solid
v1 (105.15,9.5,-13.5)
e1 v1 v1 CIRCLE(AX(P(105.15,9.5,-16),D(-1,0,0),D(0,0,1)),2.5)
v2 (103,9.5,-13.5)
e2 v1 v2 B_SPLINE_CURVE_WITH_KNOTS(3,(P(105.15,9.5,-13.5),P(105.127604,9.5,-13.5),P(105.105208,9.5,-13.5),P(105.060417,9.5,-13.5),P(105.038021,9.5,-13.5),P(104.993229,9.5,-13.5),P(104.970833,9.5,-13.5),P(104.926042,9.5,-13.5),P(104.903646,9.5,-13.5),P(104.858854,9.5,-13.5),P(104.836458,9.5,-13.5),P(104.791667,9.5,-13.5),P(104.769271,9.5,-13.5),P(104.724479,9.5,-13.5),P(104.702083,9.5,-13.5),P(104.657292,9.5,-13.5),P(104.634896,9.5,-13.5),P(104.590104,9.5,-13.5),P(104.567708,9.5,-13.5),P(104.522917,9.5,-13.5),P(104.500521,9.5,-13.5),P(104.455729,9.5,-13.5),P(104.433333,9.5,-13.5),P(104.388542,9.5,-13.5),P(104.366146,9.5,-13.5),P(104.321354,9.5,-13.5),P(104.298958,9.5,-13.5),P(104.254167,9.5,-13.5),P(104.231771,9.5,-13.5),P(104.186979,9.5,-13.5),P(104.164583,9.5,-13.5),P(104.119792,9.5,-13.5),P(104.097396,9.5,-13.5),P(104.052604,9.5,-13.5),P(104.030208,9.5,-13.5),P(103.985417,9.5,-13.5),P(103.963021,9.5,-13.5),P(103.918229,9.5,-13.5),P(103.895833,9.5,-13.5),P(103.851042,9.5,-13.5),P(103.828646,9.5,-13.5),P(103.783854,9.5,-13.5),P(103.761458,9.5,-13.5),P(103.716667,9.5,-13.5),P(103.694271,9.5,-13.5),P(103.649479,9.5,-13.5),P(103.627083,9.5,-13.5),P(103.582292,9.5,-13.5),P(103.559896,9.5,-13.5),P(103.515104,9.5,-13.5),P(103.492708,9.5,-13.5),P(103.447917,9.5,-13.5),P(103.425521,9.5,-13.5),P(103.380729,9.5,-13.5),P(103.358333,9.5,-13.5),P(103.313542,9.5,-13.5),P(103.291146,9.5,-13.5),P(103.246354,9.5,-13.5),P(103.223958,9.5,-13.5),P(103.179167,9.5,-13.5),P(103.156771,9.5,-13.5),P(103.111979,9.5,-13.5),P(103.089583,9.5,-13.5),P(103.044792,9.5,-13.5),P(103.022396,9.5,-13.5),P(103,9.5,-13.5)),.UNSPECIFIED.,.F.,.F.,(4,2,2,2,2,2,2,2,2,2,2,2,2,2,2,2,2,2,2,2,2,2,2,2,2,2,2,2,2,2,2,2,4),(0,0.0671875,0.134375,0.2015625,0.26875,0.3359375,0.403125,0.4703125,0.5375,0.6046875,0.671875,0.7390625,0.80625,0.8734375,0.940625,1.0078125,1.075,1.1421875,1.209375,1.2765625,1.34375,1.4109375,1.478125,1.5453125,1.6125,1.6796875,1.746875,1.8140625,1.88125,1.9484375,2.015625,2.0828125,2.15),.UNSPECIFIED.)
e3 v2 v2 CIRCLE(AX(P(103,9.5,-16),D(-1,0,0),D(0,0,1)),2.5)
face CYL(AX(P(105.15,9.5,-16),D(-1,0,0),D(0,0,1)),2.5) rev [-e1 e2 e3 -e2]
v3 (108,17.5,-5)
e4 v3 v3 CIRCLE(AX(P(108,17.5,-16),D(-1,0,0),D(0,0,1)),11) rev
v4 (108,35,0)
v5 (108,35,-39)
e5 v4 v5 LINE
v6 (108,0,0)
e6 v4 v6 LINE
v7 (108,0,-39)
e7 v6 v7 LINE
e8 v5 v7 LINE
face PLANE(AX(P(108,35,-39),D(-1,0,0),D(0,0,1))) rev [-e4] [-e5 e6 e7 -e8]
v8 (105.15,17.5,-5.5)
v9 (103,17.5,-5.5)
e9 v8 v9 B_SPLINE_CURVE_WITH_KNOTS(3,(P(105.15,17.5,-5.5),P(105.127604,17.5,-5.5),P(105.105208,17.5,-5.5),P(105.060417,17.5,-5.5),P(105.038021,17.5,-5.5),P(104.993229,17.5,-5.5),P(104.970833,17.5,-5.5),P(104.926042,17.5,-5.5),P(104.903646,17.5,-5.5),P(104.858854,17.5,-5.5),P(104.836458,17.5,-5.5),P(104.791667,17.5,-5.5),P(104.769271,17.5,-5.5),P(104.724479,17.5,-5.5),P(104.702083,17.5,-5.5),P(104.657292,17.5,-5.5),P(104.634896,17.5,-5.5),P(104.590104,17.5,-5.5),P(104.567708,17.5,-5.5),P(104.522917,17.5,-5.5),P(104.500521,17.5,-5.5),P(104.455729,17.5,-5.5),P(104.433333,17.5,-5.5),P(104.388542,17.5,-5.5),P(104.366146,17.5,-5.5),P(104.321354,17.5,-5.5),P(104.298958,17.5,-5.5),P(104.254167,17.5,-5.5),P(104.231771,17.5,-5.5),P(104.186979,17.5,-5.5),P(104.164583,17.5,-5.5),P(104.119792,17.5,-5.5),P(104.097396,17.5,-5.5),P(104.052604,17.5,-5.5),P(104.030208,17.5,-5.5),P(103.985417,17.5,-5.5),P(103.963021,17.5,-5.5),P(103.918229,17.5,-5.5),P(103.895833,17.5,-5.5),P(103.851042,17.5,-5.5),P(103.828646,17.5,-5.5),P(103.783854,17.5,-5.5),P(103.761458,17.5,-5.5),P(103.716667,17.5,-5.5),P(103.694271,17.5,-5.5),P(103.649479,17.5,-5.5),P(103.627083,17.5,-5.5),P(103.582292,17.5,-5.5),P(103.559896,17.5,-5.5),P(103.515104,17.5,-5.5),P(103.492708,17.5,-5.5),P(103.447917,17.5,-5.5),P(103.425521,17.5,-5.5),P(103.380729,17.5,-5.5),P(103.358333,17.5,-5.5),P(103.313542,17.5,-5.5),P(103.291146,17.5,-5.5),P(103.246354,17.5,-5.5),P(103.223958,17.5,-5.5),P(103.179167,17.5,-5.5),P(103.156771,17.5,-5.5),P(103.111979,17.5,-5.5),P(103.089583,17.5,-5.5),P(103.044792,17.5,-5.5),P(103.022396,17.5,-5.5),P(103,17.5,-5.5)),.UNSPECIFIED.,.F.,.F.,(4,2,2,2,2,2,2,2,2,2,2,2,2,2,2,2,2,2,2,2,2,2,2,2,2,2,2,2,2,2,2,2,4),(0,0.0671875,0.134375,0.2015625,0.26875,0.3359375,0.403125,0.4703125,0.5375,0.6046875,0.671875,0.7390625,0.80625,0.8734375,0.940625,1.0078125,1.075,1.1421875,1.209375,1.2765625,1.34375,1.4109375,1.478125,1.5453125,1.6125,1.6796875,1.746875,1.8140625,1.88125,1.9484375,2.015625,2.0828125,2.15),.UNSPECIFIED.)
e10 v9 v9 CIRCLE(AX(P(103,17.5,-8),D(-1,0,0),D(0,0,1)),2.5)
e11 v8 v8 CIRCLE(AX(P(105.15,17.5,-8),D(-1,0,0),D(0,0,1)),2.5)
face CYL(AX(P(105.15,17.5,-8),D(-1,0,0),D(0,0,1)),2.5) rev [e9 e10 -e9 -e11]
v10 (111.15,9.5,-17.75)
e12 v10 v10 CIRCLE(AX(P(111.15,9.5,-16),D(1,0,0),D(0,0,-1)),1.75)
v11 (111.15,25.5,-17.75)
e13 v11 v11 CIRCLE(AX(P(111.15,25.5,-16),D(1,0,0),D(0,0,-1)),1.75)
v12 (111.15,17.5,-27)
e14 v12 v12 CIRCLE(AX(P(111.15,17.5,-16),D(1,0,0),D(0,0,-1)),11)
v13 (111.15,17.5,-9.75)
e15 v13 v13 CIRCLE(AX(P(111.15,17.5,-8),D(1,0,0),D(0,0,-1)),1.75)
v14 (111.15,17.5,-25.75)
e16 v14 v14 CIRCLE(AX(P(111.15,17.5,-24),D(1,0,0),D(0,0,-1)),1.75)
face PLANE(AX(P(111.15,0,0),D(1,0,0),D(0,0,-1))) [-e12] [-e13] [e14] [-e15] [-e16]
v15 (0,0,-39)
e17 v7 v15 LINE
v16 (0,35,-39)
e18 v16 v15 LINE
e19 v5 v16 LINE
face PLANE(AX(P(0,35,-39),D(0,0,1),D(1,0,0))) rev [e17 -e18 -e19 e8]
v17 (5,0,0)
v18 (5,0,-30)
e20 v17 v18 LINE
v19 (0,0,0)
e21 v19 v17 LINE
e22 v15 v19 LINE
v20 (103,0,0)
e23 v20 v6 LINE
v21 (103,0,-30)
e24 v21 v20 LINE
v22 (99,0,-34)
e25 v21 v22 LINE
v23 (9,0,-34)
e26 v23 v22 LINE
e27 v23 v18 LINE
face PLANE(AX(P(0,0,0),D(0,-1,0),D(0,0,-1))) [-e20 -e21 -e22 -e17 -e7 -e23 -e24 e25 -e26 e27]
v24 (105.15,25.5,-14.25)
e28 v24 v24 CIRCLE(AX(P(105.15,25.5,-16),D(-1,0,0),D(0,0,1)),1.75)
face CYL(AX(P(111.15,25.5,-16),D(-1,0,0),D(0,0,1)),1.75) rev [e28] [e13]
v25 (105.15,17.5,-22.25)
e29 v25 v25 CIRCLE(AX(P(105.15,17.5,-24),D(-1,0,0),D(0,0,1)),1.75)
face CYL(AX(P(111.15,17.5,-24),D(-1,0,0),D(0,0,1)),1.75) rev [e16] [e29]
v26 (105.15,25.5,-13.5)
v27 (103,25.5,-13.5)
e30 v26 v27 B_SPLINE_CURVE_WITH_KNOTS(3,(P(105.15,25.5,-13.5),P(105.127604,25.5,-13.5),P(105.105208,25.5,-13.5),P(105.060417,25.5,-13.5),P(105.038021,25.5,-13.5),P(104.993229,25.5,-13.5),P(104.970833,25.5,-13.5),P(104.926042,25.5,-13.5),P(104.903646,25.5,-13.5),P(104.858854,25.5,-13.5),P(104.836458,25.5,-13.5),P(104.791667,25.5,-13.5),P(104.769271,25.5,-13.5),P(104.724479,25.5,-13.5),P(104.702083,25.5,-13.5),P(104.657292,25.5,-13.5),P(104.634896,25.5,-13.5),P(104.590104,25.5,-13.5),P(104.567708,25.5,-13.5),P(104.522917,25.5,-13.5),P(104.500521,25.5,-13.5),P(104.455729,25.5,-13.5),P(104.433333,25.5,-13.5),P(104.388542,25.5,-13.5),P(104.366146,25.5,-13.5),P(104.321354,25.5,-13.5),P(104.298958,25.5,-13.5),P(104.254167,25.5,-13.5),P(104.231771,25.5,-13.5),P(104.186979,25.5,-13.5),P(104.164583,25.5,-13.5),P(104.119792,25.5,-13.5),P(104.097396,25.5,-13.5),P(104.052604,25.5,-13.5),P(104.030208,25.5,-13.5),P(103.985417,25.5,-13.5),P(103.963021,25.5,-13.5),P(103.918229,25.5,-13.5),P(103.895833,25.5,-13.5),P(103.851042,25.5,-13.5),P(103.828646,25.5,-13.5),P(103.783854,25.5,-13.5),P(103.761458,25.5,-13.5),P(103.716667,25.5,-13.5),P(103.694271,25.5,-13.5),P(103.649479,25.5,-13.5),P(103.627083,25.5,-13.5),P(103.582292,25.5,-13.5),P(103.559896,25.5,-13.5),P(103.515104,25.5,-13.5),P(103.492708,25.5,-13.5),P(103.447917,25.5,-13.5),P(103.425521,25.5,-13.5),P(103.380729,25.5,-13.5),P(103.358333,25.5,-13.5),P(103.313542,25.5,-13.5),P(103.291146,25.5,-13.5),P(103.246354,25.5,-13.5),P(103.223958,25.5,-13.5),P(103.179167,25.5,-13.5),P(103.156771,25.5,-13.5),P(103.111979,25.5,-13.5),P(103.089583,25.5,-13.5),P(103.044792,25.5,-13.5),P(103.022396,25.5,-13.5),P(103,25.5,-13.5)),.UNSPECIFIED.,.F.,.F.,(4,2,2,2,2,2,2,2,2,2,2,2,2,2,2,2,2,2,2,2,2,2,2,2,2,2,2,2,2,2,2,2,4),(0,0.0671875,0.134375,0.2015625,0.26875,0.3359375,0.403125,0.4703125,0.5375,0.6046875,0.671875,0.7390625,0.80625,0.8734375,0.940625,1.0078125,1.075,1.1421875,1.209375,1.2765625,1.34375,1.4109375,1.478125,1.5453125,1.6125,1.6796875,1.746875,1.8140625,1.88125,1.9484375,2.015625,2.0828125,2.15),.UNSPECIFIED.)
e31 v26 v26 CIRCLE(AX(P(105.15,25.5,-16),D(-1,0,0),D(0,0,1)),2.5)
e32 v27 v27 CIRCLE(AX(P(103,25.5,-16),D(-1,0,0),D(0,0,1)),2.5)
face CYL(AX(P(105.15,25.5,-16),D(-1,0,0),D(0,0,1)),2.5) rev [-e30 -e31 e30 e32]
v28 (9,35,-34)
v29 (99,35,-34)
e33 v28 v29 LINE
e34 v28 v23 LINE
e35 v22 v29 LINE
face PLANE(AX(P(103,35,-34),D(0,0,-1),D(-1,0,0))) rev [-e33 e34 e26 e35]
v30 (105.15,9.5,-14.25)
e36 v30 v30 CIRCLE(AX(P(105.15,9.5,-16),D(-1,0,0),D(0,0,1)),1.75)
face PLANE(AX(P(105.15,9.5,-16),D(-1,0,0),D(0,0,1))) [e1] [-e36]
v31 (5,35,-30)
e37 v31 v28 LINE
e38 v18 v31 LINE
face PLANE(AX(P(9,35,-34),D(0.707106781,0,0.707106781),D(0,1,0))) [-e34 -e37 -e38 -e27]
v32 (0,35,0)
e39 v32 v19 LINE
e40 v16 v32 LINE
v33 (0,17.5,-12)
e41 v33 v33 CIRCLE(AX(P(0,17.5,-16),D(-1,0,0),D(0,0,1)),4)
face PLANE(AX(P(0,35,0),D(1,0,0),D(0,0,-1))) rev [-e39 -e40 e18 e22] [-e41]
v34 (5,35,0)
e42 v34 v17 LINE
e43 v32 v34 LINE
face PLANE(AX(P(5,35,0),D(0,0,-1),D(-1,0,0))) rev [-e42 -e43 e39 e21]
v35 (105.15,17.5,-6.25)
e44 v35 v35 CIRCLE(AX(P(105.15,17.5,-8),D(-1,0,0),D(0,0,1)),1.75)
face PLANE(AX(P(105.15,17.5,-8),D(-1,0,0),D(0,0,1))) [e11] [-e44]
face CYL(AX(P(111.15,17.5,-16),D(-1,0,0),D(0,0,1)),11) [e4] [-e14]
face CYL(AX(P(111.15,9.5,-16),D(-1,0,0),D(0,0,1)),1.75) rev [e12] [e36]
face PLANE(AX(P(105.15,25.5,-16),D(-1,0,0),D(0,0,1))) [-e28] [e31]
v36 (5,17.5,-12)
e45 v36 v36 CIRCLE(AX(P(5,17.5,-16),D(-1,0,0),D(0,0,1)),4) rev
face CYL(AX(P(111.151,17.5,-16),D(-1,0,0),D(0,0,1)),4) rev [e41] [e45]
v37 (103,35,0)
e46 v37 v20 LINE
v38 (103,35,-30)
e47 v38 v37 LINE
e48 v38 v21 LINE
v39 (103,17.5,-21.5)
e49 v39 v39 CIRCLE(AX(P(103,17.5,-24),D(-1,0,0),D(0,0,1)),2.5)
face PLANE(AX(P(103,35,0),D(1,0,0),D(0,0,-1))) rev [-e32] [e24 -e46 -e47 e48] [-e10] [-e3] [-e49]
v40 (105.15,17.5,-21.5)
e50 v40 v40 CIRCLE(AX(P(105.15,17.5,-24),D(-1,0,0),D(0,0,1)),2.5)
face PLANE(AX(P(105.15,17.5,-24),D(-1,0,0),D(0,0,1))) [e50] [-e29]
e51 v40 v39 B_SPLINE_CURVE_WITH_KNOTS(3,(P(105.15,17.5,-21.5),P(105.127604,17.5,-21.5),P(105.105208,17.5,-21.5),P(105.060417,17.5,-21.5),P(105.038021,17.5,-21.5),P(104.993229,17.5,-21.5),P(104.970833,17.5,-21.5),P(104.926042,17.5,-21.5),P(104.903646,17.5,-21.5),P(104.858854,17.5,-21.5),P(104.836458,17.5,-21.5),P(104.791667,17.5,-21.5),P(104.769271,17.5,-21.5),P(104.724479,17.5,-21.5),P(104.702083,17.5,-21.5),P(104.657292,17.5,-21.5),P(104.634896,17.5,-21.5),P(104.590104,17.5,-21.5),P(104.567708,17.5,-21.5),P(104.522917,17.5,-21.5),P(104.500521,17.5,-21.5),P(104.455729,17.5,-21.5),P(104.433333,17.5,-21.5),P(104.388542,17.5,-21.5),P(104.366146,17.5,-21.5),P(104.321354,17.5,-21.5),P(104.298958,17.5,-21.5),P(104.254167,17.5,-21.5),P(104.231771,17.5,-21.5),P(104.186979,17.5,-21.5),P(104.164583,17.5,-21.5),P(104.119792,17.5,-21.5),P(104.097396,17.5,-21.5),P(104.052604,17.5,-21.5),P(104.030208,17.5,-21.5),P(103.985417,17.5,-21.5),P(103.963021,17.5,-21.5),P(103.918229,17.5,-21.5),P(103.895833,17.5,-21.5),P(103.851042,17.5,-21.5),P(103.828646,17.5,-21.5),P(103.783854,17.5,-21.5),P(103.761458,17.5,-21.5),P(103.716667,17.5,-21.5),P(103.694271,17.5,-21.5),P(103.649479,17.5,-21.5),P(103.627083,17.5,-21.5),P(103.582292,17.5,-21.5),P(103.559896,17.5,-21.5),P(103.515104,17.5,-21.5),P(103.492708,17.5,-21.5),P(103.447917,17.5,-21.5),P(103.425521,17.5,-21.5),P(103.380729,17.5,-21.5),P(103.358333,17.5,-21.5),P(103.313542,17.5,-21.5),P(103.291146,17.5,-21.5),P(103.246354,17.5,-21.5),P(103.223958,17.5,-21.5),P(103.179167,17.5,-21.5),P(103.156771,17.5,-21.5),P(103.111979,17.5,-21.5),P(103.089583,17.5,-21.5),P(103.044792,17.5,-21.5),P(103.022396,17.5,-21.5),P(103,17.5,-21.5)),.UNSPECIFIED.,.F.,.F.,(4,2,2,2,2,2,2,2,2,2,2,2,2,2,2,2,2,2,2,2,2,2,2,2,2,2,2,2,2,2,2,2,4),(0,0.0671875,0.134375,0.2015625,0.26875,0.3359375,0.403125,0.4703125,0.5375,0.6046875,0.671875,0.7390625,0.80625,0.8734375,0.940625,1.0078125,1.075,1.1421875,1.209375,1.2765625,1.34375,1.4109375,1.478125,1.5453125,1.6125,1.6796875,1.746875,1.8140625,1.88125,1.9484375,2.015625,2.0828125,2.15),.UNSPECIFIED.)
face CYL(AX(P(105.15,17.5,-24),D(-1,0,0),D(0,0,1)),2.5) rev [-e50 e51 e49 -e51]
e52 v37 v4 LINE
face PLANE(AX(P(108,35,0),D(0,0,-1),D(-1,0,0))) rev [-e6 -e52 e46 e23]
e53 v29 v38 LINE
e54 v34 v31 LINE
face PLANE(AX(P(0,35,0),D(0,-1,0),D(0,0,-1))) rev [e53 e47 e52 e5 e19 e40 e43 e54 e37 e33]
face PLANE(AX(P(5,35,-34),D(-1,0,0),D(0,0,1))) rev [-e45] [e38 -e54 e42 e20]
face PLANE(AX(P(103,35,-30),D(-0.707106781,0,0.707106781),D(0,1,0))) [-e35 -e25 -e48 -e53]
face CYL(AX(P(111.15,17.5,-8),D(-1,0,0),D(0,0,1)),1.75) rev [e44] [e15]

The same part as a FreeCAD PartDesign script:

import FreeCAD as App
import Part
import Sketcher
from FreeCAD import Vector
Q = App.Units.Quantity


def edges_at(feature, points):
    """Names of the edges that pass closest to the given points."""
    edges = feature.Shape.Edges
    near = lambda p: min(range(len(edges)), key=lambda i: edges[i].distToShape(Part.Vertex(*p))[0])
    return sorted({f"Edge{near(p) + 1}" for p in points})

doc = App.newDocument("Part")
body = doc.addObject("PartDesign::Body", "Body")

# Sketch on XZ plane
sketch1 = body.newObject("Sketcher::SketchObject", "Sketch")
sketch1.AttachmentSupport = (doc.getObject("XZ_Plane"), [""])
sketch1.MapMode = "FlatFace"
sketch1.addGeometry([
    Part.LineSegment(Vector(0, -39, 0), Vector(0, 0, 0)),  # 0
    Part.LineSegment(Vector(0, 0, 0), Vector(5, 0, 0)),  # 1
    Part.LineSegment(Vector(5, 0, 0), Vector(5, -34, 0)),  # 2
    Part.LineSegment(Vector(5, -34, 0), Vector(103, -34, 0)),  # 3
    Part.LineSegment(Vector(103, -34, 0), Vector(103, 0, 0)),  # 4
    Part.LineSegment(Vector(103, 0, 0), Vector(108, 0, 0)),  # 5
    Part.LineSegment(Vector(108, 0, 0), Vector(108, -39, 0)),  # 6
    Part.LineSegment(Vector(108, -39, 0), Vector(0, -39, 0)),  # 7
], False)
sketch1.addConstraint([
    Sketcher.Constraint("Coincident", 0, 2, 1, 1),
    Sketcher.Constraint("Coincident", 1, 2, 2, 1),
    Sketcher.Constraint("Coincident", 2, 2, 3, 1),
    Sketcher.Constraint("Coincident", 3, 2, 4, 1),
    Sketcher.Constraint("Coincident", 4, 2, 5, 1),
    Sketcher.Constraint("Coincident", 5, 2, 6, 1),
    Sketcher.Constraint("Coincident", 6, 2, 7, 1),
    Sketcher.Constraint("Coincident", 7, 2, 0, 1),
    Sketcher.Constraint("Vertical", 0),
    Sketcher.Constraint("Horizontal", 1),
    Sketcher.Constraint("Vertical", 2),
    Sketcher.Constraint("Horizontal", 3),
    Sketcher.Constraint("Vertical", 4),
    Sketcher.Constraint("Horizontal", 5),
    Sketcher.Constraint("Vertical", 6),
    Sketcher.Constraint("Horizontal", 7),
    Sketcher.Constraint("Coincident", 0, 2, -1, 1),
    Sketcher.Constraint("PointOnObject", 4, 2, -1),
    Sketcher.Constraint("Equal", 1, 5),
    Sketcher.Constraint("DistanceX", 1, 1, 1, 2, Q("5 mm")),
    Sketcher.Constraint("DistanceX", 3, 1, 3, 2, Q("98 mm")),
    Sketcher.Constraint("DistanceY", 0, 1, 0, 2, Q("39 mm")),
    Sketcher.Constraint("DistanceY", 2, 2, 2, 1, Q("34 mm")),
])
pad1 = body.newObject("PartDesign::Pad", "Pad")
pad1.Profile = sketch1
pad1.Length = 35
pad1.Reversed = True

# Sketch on YZ plane
sketch2 = body.newObject("Sketcher::SketchObject", "Sketch001")
sketch2.AttachmentSupport = (doc.getObject("YZ_Plane"), [""])
sketch2.MapMode = "FlatFace"
sketch2.AttachmentOffset = App.Placement(Vector(0, 0, 108), App.Rotation())
sketch2.addGeometry([
    Part.Circle(Vector(17.5, -16, 0), Vector(0, 0, 1), 11),  # 0
    Part.Circle(Vector(25.5, -16, 0), Vector(0, 0, 1), 1.8),  # 1
    Part.Circle(Vector(17.5, -24, 0), Vector(0, 0, 1), 1.8),  # 2
    Part.Circle(Vector(9.5, -16, 0), Vector(0, 0, 1), 1.8),  # 3
    Part.Circle(Vector(17.5, -8, 0), Vector(0, 0, 1), 1.8),  # 4
], False)
sketch2.addConstraint([
    Sketcher.Constraint("Equal", 1, 2),
    Sketcher.Constraint("Equal", 2, 3),
    Sketcher.Constraint("Equal", 3, 4),
    Sketcher.Constraint("Horizontal", 0, 3, 1, 3),
    Sketcher.Constraint("Horizontal", 1, 3, 3, 3),
    Sketcher.Constraint("Vertical", 0, 3, 2, 3),
    Sketcher.Constraint("Vertical", 2, 3, 4, 3),
    Sketcher.Constraint("Diameter", 0, Q("22 mm")),
    Sketcher.Constraint("Diameter", 1, Q("3.5 mm")),
    Sketcher.Constraint("DistanceY", 0, 3, -1, 1, Q("16 mm")),
    Sketcher.Constraint("DistanceY", 2, 3, -1, 1, Q("24 mm")),
    Sketcher.Constraint("DistanceY", 4, 3, -1, 1, Q("8 mm")),
    Sketcher.Constraint("DistanceX", 0, 3, 1, 3, Q("8 mm")),
    Sketcher.Constraint("DistanceX", 3, 3, 0, 3, Q("8 mm")),
    Sketcher.Constraint("DistanceX", -1, 1, 0, 3, Q("17.5 mm")),
])
pad2 = body.newObject("PartDesign::Pad", "Pad001")
pad2.Profile = sketch2
pad2.Length = 3.15

# Sketch on YZ plane
sketch3 = body.newObject("Sketcher::SketchObject", "Sketch002")
sketch3.AttachmentSupport = (doc.getObject("YZ_Plane"), [""])
sketch3.MapMode = "FlatFace"
sketch3.AttachmentOffset = App.Placement(Vector(0, 0, 108), App.Rotation())
sketch3.addGeometry(Part.Circle(Vector(9.5, -16, 0), Vector(0, 0, 1), 1.8), False)
sketch3.addConstraint([
    Sketcher.Constraint("Diameter", 0, Q("3.5 mm")),
    Sketcher.Constraint("DistanceY", 0, 3, -1, 1, Q("16 mm")),
    Sketcher.Constraint("DistanceX", -1, 1, 0, 3, Q("9.5 mm")),
])
pocket1 = body.newObject("PartDesign::Pocket", "Pocket")
pocket1.Profile = sketch3
pocket1.Type = "UpToFirst"

# Sketch on YZ plane
sketch4 = body.newObject("Sketcher::SketchObject", "Sketch003")
sketch4.AttachmentSupport = (doc.getObject("YZ_Plane"), [""])
sketch4.MapMode = "FlatFace"
sketch4.AttachmentOffset = App.Placement(Vector(0, 0, 108), App.Rotation())
sketch4.addGeometry(Part.Circle(Vector(17.5, -24, 0), Vector(0, 0, 1), 1.8), False)
sketch4.addConstraint([
    Sketcher.Constraint("Diameter", 0, Q("3.5 mm")),
    Sketcher.Constraint("DistanceY", 0, 3, -1, 1, Q("24 mm")),
    Sketcher.Constraint("DistanceX", -1, 1, 0, 3, Q("17.5 mm")),
])
pocket2 = body.newObject("PartDesign::Pocket", "Pocket001")
pocket2.Profile = sketch4
pocket2.Type = "UpToFirst"

# Sketch on YZ plane
sketch5 = body.newObject("Sketcher::SketchObject", "Sketch004")
sketch5.AttachmentSupport = (doc.getObject("YZ_Plane"), [""])
sketch5.MapMode = "FlatFace"
sketch5.AttachmentOffset = App.Placement(Vector(0, 0, 108), App.Rotation())
sketch5.addGeometry(Part.Circle(Vector(25.5, -16, 0), Vector(0, 0, 1), 1.8), False)
sketch5.addConstraint([
    Sketcher.Constraint("Diameter", 0, Q("3.5 mm")),
    Sketcher.Constraint("DistanceY", 0, 3, -1, 1, Q("16 mm")),
    Sketcher.Constraint("DistanceX", -1, 1, 0, 3, Q("25.5 mm")),
])
pocket3 = body.newObject("PartDesign::Pocket", "Pocket002")
pocket3.Profile = sketch5
pocket3.Type = "UpToFirst"

# Sketch on YZ plane
sketch6 = body.newObject("Sketcher::SketchObject", "Sketch005")
sketch6.AttachmentSupport = (doc.getObject("YZ_Plane"), [""])
sketch6.MapMode = "FlatFace"
sketch6.AttachmentOffset = App.Placement(Vector(0, 0, 108), App.Rotation())
sketch6.addGeometry(Part.Circle(Vector(17.5, -8, 0), Vector(0, 0, 1), 1.8), False)
sketch6.addConstraint([
    Sketcher.Constraint("Diameter", 0, Q("3.5 mm")),
    Sketcher.Constraint("DistanceY", 0, 3, -1, 1, Q("8 mm")),
    Sketcher.Constraint("DistanceX", -1, 1, 0, 3, Q("17.5 mm")),
])
pocket4 = body.newObject("PartDesign::Pocket", "Pocket003")
pocket4.Profile = sketch6
pocket4.Type = "UpToFirst"

# Sketch on YZ plane
sketch7 = body.newObject("Sketcher::SketchObject", "Sketch006")
sketch7.AttachmentSupport = (doc.getObject("YZ_Plane"), [""])
sketch7.MapMode = "FlatFace"
sketch7.AttachmentOffset = App.Placement(Vector(0, 0, 103), App.Rotation())
sketch7.addGeometry([
    Part.Circle(Vector(9.5, -16, 0), Vector(0, 0, 1), 2.5),
    Part.Circle(Vector(17.5, -24, 0), Vector(0, 0, 1), 2.5),
    Part.Circle(Vector(25.5, -16, 0), Vector(0, 0, 1), 2.5),
    Part.Circle(Vector(17.5, -8, 0), Vector(0, 0, 1), 2.5),
], False)
sketch7.addConstraint([
    Sketcher.Constraint("Equal", 0, 1),
    Sketcher.Constraint("Equal", 1, 2),
    Sketcher.Constraint("Equal", 2, 3),
    Sketcher.Constraint("Horizontal", 0, 3, 2, 3),
    Sketcher.Constraint("Vertical", 1, 3, 3, 3),
    Sketcher.Constraint("Diameter", 0, Q("5 mm")),
    Sketcher.Constraint("DistanceY", 0, 3, -1, 1, Q("16 mm")),
    Sketcher.Constraint("DistanceY", 1, 3, -1, 1, Q("24 mm")),
    Sketcher.Constraint("DistanceY", 3, 3, -1, 1, Q("8 mm")),
    Sketcher.Constraint("DistanceX", 0, 3, 1, 3, Q("8 mm")),
    Sketcher.Constraint("DistanceX", 1, 3, 2, 3, Q("8 mm")),
    Sketcher.Constraint("DistanceX", -1, 1, 0, 3, Q("9.5 mm")),
])
pocket5 = body.newObject("PartDesign::Pocket", "Pocket004")
pocket5.Profile = sketch7
pocket5.Length = 2.15
pocket5.Reversed = True

# Sketch on YZ plane
sketch8 = body.newObject("Sketcher::SketchObject", "Sketch007")
sketch8.AttachmentSupport = (doc.getObject("YZ_Plane"), [""])
sketch8.MapMode = "FlatFace"
sketch8.addGeometry(Part.Circle(Vector(17.5, -16, 0), Vector(0, 0, 1), 4), False)
sketch8.addConstraint([
    Sketcher.Constraint("Diameter", 0, Q("8 mm")),
    Sketcher.Constraint("DistanceY", 0, 3, -1, 1, Q("16 mm")),
    Sketcher.Constraint("DistanceX", -1, 1, 0, 3, Q("17.5 mm")),
])
pocket6 = body.newObject("PartDesign::Pocket", "Pocket005")
pocket6.Profile = sketch8
pocket6.Type = "UpToFirst"
pocket6.Reversed = True
doc.recompute()

chamfer = body.newObject("PartDesign::Chamfer", "Chamfer")
chamfer.Base = (pocket6, edges_at(pocket6, [(103, 17.5, -34), (5, 17.5, -34)]))
chamfer.Size = 4

doc.recompute()
